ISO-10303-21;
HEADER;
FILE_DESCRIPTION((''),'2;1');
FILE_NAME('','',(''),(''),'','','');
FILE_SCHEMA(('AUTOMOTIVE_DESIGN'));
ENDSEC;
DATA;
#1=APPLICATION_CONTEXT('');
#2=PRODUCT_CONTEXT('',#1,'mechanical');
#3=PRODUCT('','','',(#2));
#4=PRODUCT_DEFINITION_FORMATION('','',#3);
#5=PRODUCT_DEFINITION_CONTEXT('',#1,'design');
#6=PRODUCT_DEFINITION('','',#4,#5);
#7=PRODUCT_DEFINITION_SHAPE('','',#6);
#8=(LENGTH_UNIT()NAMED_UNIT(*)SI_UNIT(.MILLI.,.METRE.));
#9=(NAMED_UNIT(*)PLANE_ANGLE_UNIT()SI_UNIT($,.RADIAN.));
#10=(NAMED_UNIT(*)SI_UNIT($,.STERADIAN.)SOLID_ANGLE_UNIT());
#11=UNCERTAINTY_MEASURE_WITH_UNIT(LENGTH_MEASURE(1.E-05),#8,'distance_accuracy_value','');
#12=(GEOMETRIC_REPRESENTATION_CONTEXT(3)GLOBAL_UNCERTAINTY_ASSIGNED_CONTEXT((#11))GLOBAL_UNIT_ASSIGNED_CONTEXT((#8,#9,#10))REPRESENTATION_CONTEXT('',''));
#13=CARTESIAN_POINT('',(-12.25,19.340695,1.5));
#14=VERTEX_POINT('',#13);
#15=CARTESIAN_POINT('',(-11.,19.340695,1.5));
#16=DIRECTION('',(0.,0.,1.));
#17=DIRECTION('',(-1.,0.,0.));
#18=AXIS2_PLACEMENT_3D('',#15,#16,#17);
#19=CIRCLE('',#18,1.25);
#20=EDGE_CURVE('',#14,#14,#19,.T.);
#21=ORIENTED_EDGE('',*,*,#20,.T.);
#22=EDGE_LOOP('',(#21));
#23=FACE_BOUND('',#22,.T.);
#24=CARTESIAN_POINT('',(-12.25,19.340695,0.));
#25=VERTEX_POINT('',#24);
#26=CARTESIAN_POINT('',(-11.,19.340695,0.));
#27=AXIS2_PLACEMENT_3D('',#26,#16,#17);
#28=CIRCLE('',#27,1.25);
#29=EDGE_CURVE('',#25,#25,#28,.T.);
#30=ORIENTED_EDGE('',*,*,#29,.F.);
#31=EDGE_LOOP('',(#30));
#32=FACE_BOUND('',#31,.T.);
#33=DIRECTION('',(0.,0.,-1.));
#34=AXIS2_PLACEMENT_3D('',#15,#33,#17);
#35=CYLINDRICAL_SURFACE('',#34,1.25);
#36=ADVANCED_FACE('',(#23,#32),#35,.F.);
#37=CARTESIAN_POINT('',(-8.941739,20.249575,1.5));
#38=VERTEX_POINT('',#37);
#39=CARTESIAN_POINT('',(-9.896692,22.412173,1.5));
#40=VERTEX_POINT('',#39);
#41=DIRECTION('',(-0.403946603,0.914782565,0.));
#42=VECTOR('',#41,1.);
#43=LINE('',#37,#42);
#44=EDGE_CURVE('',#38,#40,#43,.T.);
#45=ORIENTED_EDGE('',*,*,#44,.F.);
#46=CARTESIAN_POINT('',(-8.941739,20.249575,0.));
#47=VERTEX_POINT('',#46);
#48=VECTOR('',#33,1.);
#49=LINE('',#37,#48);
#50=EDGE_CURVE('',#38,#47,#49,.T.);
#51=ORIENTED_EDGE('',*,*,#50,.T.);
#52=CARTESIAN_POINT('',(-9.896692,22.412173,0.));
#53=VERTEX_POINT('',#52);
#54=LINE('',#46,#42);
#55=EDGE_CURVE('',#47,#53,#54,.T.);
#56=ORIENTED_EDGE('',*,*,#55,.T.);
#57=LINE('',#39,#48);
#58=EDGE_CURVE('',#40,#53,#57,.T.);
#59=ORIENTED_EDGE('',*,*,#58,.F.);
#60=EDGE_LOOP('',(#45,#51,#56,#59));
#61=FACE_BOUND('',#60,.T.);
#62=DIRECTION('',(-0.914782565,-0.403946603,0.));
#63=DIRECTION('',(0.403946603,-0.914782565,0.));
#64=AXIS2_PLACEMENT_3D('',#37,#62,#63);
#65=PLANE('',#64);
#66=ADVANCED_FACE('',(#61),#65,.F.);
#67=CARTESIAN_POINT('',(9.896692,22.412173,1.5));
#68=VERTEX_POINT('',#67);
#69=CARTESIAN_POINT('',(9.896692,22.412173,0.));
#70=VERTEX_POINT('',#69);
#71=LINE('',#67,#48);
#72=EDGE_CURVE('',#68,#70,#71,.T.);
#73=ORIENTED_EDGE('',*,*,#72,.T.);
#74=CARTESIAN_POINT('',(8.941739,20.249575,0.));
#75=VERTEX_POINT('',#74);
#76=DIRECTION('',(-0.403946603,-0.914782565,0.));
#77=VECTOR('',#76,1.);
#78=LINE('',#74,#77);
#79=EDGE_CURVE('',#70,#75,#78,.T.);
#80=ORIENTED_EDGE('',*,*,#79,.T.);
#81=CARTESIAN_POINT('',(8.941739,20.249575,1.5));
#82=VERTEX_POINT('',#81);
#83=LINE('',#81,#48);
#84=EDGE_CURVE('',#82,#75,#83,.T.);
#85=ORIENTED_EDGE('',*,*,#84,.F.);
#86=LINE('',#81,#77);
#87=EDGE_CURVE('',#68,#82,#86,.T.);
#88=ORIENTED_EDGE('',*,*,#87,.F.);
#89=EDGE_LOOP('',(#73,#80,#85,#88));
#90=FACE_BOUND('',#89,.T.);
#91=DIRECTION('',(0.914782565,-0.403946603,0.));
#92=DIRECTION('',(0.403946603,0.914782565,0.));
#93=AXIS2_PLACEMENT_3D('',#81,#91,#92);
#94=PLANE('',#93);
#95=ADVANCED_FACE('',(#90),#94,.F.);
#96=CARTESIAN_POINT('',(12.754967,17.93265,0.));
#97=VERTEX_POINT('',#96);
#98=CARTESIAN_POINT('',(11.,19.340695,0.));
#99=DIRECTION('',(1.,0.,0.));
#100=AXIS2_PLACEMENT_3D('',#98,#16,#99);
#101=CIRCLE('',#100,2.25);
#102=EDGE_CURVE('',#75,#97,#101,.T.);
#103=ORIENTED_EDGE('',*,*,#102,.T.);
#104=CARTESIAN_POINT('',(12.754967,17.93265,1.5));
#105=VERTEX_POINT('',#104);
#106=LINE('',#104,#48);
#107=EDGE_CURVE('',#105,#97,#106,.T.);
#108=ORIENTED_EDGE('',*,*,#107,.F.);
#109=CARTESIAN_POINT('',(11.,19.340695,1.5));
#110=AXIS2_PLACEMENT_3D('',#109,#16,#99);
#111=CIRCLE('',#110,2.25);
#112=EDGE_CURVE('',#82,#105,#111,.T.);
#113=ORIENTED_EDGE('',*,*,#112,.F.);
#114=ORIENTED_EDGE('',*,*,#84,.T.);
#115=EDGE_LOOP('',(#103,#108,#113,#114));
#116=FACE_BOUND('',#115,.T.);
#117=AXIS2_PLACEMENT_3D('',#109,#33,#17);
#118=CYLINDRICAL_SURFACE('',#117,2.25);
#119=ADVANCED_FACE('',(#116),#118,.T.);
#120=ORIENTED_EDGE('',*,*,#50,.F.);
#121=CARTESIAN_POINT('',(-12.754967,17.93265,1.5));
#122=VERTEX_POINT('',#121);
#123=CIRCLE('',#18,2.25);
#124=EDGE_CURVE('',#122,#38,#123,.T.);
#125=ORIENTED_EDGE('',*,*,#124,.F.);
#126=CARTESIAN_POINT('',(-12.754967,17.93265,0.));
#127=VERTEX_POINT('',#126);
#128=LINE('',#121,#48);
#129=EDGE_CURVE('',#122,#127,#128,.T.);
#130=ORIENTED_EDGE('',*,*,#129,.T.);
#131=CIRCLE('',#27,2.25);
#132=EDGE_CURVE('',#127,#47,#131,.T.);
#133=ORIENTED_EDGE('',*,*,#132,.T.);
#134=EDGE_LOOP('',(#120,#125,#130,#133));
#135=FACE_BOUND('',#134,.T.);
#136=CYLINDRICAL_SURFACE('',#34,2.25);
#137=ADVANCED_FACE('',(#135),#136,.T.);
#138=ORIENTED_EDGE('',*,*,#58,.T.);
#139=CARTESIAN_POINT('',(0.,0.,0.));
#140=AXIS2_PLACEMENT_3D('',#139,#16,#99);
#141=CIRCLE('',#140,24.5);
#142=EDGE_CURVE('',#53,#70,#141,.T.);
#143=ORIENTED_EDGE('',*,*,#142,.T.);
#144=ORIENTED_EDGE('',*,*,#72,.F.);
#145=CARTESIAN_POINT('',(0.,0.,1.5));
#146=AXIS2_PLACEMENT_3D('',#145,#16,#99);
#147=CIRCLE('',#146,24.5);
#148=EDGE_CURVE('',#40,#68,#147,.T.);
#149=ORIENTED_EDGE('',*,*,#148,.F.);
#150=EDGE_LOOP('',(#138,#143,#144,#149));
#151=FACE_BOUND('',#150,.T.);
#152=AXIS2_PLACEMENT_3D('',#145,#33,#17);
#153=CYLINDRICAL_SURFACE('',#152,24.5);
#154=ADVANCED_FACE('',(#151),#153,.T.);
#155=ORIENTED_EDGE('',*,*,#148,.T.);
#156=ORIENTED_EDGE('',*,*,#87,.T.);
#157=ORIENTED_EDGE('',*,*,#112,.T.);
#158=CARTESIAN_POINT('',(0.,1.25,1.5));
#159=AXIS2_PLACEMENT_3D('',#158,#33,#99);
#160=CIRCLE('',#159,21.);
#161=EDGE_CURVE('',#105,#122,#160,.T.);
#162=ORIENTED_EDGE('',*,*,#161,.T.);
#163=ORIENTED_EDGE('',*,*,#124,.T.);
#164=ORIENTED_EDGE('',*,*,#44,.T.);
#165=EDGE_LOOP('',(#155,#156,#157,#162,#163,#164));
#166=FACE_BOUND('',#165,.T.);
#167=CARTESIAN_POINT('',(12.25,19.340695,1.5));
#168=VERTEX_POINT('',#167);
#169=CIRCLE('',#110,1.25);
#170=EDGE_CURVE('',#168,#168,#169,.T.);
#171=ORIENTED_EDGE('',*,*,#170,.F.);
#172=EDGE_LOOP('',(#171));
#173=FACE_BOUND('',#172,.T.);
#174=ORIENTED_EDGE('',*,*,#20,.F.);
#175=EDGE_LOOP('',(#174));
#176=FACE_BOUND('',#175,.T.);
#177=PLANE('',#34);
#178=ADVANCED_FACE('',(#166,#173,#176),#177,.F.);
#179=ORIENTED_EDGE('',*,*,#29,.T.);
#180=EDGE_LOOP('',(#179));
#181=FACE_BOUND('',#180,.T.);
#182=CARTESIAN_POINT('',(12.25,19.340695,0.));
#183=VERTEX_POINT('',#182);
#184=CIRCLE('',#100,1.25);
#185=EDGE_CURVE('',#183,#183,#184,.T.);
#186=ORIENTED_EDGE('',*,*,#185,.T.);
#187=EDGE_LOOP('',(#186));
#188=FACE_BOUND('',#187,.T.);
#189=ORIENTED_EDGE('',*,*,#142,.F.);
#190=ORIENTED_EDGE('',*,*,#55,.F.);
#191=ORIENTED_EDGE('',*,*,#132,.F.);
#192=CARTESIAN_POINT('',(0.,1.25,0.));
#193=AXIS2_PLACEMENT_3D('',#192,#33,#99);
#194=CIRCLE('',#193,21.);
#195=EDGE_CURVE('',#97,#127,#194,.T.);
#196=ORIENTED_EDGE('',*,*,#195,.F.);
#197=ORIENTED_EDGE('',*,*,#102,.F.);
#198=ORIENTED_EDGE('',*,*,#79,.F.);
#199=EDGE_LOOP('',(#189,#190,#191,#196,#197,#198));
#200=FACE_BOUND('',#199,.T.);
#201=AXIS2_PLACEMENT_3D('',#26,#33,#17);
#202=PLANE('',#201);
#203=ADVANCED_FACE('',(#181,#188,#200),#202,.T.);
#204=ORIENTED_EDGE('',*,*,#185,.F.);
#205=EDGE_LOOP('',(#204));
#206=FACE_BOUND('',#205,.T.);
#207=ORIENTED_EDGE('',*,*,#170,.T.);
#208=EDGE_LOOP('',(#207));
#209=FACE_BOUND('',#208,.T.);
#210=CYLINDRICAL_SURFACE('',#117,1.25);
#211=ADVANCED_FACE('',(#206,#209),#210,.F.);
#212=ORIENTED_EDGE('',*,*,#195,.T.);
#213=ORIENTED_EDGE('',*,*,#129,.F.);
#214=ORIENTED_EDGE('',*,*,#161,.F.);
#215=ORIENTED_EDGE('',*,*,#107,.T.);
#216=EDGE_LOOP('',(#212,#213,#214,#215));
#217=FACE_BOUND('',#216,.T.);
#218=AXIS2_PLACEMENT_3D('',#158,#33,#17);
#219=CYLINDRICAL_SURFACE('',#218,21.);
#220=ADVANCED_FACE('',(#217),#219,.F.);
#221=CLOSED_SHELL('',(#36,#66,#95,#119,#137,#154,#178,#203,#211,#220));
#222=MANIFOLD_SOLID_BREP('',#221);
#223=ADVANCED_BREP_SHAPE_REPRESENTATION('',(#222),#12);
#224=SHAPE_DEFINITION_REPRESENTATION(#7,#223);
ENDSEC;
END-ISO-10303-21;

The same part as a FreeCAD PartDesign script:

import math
import FreeCAD as App
import Part
import Sketcher

V = App.Vector

doc = App.newDocument("Part")
body = doc.addObject("PartDesign::Body", "Body")

sketch1 = doc.addObject("Sketcher::SketchObject", "Sketch")
body.addObject(sketch1)
sketch1.AttachmentSupport = (doc.XY_Plane, [""])
sketch1.MapMode = "FlatFace"
sketch1.addGeometry([
    Part.LineSegment(V(9.9, 22.4, 0), V(8.9, 20.2, 0)),
    Part.ArcOfCircle(Part.Circle(V(11, 19.3, 0), V(0, 0, 1), 2.2), math.radians(156), math.radians(321)),
    Part.ArcOfCircle(Part.Circle(V(0, 1.2, 0), V(0, 0, 1), 21), math.radians(127), math.radians(413)),
    Part.ArcOfCircle(Part.Circle(V(-11, 19.3, 0), V(0, 0, 1), 2.2), math.radians(-141), math.radians(24)),
    Part.LineSegment(V(-8.9, 20.2, 0), V(-9.9, 22.4, 0)),
    Part.ArcOfCircle(Part.Circle(V(0, 0, 0), V(0, 0, 1), 24.5), math.radians(114), math.radians(426)),
    Part.Circle(V(11, 19.3, 0), V(0, 0, 1), 1.2),
    Part.Circle(V(-11, 19.3, 0), V(0, 0, 1), 1.2),
], False)
sketch1.addConstraint([
    Sketcher.Constraint("Tangent", 0, 2, 1, 1),
    Sketcher.Constraint("Coincident", 1, 2, 2, 2),
    Sketcher.Constraint("Coincident", 2, 1, 3, 1),
    Sketcher.Constraint("Tangent", 3, 2, 4, 1),
    Sketcher.Constraint("Coincident", 4, 2, 5, 1),
    Sketcher.Constraint("Coincident", 5, 2, 0, 1),
    Sketcher.Constraint("Coincident", 5, 3, -1, 1),
    Sketcher.Constraint("Coincident", 6, 3, 1, 3),
    Sketcher.Constraint("Coincident", 7, 3, 3, 3),
    Sketcher.Constraint("Equal", 1, 3),
    Sketcher.Constraint("Equal", 6, 7),
    Sketcher.Constraint("Symmetric", 1, 3, 3, 3, -2),
    Sketcher.Constraint("PointOnObject", 2, 3, -2),
    Sketcher.Constraint("Horizontal", 0, 2, 3, 2),
    Sketcher.Constraint("Radius", 2, 21.0),
    Sketcher.Constraint("Diameter", 6, 2.5),
    Sketcher.Constraint("Radius", 5, 24.5),
    Sketcher.Constraint("Radius", 1, 2.25),
    Sketcher.Constraint("DistanceX", -1, 1, 1, 3, 11.0),
    Sketcher.Constraint("DistanceY", -1, 1, 2, 3, 1.25),
    Sketcher.Constraint("DistanceX", -1, 1, 0, 2, 8.941739),
    Sketcher.Constraint("DistanceY", -1, 1, 1, 2, 17.93265),
])
pad1 = doc.addObject("PartDesign::Pad", "Pad")
body.addObject(pad1)
pad1.Profile = sketch1
pad1.Length = 1.5

doc.recompute()
